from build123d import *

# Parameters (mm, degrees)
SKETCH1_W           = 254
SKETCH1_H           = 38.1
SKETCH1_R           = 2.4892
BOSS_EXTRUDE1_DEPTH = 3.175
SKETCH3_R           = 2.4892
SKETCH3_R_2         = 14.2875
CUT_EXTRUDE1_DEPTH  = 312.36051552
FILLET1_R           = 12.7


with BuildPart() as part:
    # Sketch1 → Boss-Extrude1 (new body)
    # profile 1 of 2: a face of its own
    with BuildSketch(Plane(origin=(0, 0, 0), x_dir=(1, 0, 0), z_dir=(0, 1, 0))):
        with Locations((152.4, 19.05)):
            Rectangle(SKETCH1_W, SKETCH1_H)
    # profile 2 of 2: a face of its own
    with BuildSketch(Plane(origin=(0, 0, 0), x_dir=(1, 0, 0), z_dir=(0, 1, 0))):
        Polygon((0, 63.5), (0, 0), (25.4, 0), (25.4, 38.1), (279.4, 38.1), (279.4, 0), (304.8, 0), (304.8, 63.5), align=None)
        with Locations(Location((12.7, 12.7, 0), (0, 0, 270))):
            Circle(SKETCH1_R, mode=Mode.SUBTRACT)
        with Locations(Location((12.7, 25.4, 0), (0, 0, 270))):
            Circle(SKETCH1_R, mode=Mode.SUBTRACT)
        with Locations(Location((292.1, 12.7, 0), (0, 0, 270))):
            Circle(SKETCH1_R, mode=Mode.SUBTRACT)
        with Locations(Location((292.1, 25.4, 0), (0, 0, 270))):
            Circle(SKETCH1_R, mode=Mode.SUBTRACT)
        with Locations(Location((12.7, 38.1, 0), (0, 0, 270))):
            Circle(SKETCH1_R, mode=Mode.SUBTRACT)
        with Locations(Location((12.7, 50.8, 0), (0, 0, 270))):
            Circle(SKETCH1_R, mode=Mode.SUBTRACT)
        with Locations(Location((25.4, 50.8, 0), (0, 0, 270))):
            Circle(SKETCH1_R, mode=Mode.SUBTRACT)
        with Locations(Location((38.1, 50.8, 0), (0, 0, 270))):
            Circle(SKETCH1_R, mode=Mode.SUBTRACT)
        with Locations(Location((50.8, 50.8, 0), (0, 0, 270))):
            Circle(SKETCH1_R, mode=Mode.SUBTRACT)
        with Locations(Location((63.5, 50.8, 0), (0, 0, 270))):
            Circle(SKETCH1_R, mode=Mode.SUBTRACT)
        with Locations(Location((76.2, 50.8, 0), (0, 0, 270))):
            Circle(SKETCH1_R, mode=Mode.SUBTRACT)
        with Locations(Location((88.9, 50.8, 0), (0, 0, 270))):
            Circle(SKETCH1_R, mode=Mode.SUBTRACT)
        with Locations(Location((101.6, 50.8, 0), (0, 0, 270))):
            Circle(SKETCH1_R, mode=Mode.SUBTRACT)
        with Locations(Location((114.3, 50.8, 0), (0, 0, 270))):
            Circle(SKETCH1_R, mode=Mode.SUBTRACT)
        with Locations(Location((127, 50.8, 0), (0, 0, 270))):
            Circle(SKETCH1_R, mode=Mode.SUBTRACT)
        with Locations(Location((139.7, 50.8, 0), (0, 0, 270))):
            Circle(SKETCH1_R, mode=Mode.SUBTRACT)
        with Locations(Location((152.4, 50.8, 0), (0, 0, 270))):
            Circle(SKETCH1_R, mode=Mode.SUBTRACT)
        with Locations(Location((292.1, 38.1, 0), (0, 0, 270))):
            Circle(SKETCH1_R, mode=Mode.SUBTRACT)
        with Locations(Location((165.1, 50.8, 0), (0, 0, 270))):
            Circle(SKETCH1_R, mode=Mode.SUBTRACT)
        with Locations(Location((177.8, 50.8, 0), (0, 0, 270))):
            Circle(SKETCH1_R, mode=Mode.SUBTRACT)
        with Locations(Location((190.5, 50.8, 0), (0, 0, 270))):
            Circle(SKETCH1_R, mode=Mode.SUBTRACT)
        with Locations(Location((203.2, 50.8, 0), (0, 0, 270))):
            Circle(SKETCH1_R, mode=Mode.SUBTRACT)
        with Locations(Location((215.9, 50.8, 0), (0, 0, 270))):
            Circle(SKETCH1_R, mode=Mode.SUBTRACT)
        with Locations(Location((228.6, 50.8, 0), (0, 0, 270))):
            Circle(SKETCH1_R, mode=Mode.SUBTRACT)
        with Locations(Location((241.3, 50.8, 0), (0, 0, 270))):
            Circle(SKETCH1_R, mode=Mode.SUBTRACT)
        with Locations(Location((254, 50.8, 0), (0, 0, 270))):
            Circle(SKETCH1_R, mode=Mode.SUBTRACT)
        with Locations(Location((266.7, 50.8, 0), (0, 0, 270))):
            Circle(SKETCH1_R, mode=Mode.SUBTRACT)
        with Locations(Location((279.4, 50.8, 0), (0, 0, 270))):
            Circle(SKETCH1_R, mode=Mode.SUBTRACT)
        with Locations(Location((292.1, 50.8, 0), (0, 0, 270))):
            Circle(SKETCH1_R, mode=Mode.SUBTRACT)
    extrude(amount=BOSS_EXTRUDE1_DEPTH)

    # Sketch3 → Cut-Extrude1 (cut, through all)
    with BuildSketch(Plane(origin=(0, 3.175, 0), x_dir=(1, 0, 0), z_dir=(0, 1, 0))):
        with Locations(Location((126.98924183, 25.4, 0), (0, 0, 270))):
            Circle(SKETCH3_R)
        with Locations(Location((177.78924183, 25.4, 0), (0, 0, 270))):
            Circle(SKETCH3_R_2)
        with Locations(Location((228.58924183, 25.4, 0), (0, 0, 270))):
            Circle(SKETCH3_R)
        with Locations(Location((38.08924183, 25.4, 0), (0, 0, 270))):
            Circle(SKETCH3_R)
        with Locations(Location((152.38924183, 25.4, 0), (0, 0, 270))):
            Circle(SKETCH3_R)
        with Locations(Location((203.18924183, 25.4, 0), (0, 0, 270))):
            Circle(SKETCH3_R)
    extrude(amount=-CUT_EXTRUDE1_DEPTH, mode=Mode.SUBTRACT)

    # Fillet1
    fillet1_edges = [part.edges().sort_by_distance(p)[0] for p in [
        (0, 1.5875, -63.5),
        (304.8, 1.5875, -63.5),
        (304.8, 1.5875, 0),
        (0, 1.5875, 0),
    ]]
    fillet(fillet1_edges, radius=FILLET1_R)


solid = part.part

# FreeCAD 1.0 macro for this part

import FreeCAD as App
import Part
import Sketcher

V = App.Vector
Q = App.Units.Quantity


def edges_at(feature, points):
    """Names of the edges that pass closest to the given points."""
    edges = feature.Shape.Edges
    near = lambda p: min(range(len(edges)), key=lambda i: edges[i].distToShape(Part.Vertex(*p))[0])
    return sorted({f"Edge{near(p) + 1}" for p in points})

doc = App.newDocument("Part")
body = doc.addObject("PartDesign::Body", "Body")

# Sketch on XZ plane
sketch1 = body.newObject("Sketcher::SketchObject", "Sketch")
sketch1.AttachmentSupport = (doc.getObject("XZ_Plane"), [""])
sketch1.MapMode = "FlatFace"
sketch1.addGeometry([
    Part.LineSegment(V(304.8, 0, 0), V(304.8, -63.5, 0)),  # 0
    Part.LineSegment(V(304.8, -63.5, 0), V(0, -63.5, 0)),  # 1
    Part.LineSegment(V(0, -63.5, 0), V(0, 0, 0)),  # 2
    Part.LineSegment(V(0, 0, 0), V(304.8, 0, 0)),  # 3
    Part.Circle(V(292.1, -50.8, 0), V(0, 0, 1), 2.5),  # 4
    Part.Circle(V(266.7, -50.8, 0), V(0, 0, 1), 2.5),  # 5
    Part.Circle(V(279.4, -50.8, 0), V(0, 0, 1), 2.5),  # 6
    Part.Circle(V(12.7, -12.7, 0), V(0, 0, 1), 2.5),  # 7
    Part.Circle(V(12.7, -25.4, 0), V(0, 0, 1), 2.5),  # 8
    Part.Circle(V(292.1, -12.7, 0), V(0, 0, 1), 2.5),  # 9
    Part.Circle(V(292.1, -25.4, 0), V(0, 0, 1), 2.5),  # 10
    Part.Circle(V(12.7, -38.1, 0), V(0, 0, 1), 2.5),  # 11
    Part.Circle(V(12.7, -50.8, 0), V(0, 0, 1), 2.5),  # 12
    Part.Circle(V(25.4, -50.8, 0), V(0, 0, 1), 2.5),  # 13
    Part.Circle(V(38.1, -50.8, 0), V(0, 0, 1), 2.5),  # 14
    Part.Circle(V(50.8, -50.8, 0), V(0, 0, 1), 2.5),  # 15
    Part.Circle(V(63.5, -50.8, 0), V(0, 0, 1), 2.5),  # 16
    Part.Circle(V(76.2, -50.8, 0), V(0, 0, 1), 2.5),  # 17
    Part.Circle(V(88.9, -50.8, 0), V(0, 0, 1), 2.5),  # 18
    Part.Circle(V(101.6, -50.8, 0), V(0, 0, 1), 2.5),  # 19
    Part.Circle(V(114.3, -50.8, 0), V(0, 0, 1), 2.5),  # 20
    Part.Circle(V(127, -50.8, 0), V(0, 0, 1), 2.5),  # 21
    Part.Circle(V(139.7, -50.8, 0), V(0, 0, 1), 2.5),  # 22
    Part.Circle(V(292.1, -38.1, 0), V(0, 0, 1), 2.5),  # 23
    Part.Circle(V(152.4, -50.8, 0), V(0, 0, 1), 2.5),  # 24
    Part.Circle(V(165.1, -50.8, 0), V(0, 0, 1), 2.5),  # 25
    Part.Circle(V(177.8, -50.8, 0), V(0, 0, 1), 2.5),  # 26
    Part.Circle(V(190.5, -50.8, 0), V(0, 0, 1), 2.5),  # 27
    Part.Circle(V(203.2, -50.8, 0), V(0, 0, 1), 2.5),  # 28
    Part.Circle(V(215.9, -50.8, 0), V(0, 0, 1), 2.5),  # 29
    Part.Circle(V(228.6, -50.8, 0), V(0, 0, 1), 2.5),  # 30
    Part.Circle(V(241.3, -50.8, 0), V(0, 0, 1), 2.5),  # 31
    Part.Circle(V(254, -50.8, 0), V(0, 0, 1), 2.5),  # 32
], False)
sketch1.addConstraint([
    Sketcher.Constraint("Coincident", 0, 2, 1, 1),
    Sketcher.Constraint("Coincident", 1, 2, 2, 1),
    Sketcher.Constraint("Coincident", 2, 2, 3, 1),
    Sketcher.Constraint("Coincident", 3, 2, 0, 1),
    Sketcher.Constraint("Vertical", 0),
    Sketcher.Constraint("Horizontal", 1),
    Sketcher.Constraint("Vertical", 2),
    Sketcher.Constraint("Horizontal", 3),
    Sketcher.Constraint("Coincident", 2, 2, -1, 1),
    Sketcher.Constraint("Equal", 4, 5),
    Sketcher.Constraint("Equal", 5, 6),
    Sketcher.Constraint("Equal", 6, 7),
    Sketcher.Constraint("Equal", 7, 8),
    Sketcher.Constraint("Equal", 8, 9),
    Sketcher.Constraint("Equal", 9, 10),
    Sketcher.Constraint("Equal", 10, 11),
    Sketcher.Constraint("Equal", 11, 12),
    Sketcher.Constraint("Equal", 12, 13),
    Sketcher.Constraint("Equal", 13, 14),
    Sketcher.Constraint("Equal", 14, 15),
    Sketcher.Constraint("Equal", 15, 16),
    Sketcher.Constraint("Equal", 16, 17),
    Sketcher.Constraint("Equal", 17, 18),
    Sketcher.Constraint("Equal", 18, 19),
    Sketcher.Constraint("Equal", 19, 20),
    Sketcher.Constraint("Equal", 20, 21),
    Sketcher.Constraint("Equal", 21, 22),
    Sketcher.Constraint("Equal", 22, 23),
    Sketcher.Constraint("Equal", 23, 24),
    Sketcher.Constraint("Equal", 24, 25),
    Sketcher.Constraint("Equal", 25, 26),
    Sketcher.Constraint("Equal", 26, 27),
    Sketcher.Constraint("Equal", 27, 28),
    Sketcher.Constraint("Equal", 28, 29),
    Sketcher.Constraint("Equal", 29, 30),
    Sketcher.Constraint("Equal", 30, 31),
    Sketcher.Constraint("Equal", 31, 32),
    Sketcher.Constraint("Horizontal", 4, 3, 5, 3),
    Sketcher.Constraint("Horizontal", 5, 3, 6, 3),
    Sketcher.Constraint("Horizontal", 7, 3, 9, 3),
    Sketcher.Constraint("Horizontal", 8, 3, 10, 3),
    Sketcher.Constraint("Horizontal", 6, 3, 12, 3),
    Sketcher.Constraint("Horizontal", 12, 3, 13, 3),
    Sketcher.Constraint("Horizontal", 13, 3, 14, 3),
    Sketcher.Constraint("Horizontal", 14, 3, 15, 3),
    Sketcher.Constraint("Horizontal", 15, 3, 16, 3),
    Sketcher.Constraint("Horizontal", 16, 3, 17, 3),
    Sketcher.Constraint("Horizontal", 17, 3, 18, 3),
    Sketcher.Constraint("Horizontal", 18, 3, 19, 3),
    Sketcher.Constraint("Horizontal", 19, 3, 20, 3),
    Sketcher.Constraint("Horizontal", 20, 3, 21, 3),
    Sketcher.Constraint("Horizontal", 21, 3, 22, 3),
    Sketcher.Constraint("Horizontal", 11, 3, 23, 3),
    Sketcher.Constraint("Horizontal", 22, 3, 24, 3),
    Sketcher.Constraint("Horizontal", 24, 3, 25, 3),
    Sketcher.Constraint("Horizontal", 25, 3, 26, 3),
    Sketcher.Constraint("Horizontal", 26, 3, 27, 3),
    Sketcher.Constraint("Horizontal", 27, 3, 28, 3),
    Sketcher.Constraint("Horizontal", 28, 3, 29, 3),
    Sketcher.Constraint("Horizontal", 29, 3, 30, 3),
    Sketcher.Constraint("Horizontal", 30, 3, 31, 3),
    Sketcher.Constraint("Horizontal", 31, 3, 32, 3),
    Sketcher.Constraint("Vertical", 7, 3, 8, 3),
    Sketcher.Constraint("Vertical", 4, 3, 9, 3),
    Sketcher.Constraint("Vertical", 9, 3, 10, 3),
    Sketcher.Constraint("Vertical", 8, 3, 11, 3),
    Sketcher.Constraint("Vertical", 11, 3, 12, 3),
    Sketcher.Constraint("Vertical", 10, 3, 23, 3),
    Sketcher.Constraint("DistanceX", 1, 2, 1, 1, Q("12 in")),
    Sketcher.Constraint("Diameter", 4, Q("0.196 in")),
    Sketcher.Constraint("DistanceY", 0, 2, 0, 1, Q("2.5 in")),
    Sketcher.Constraint("DistanceY", 4, 3, -1, 1, Q("2 in")),
    Sketcher.Constraint("DistanceX", -1, 1, 6, 3, Q("11 in")),
    Sketcher.Constraint("DistanceY", 8, 3, -1, 1, Q("1 in")),
    Sketcher.Constraint("DistanceX", -1, 1, 13, 3, Q("1 in")),
    Sketcher.Constraint("DistanceX", -1, 1, 15, 3, Q("2 in")),
    Sketcher.Constraint("DistanceX", -1, 1, 17, 3, Q("3 in")),
    Sketcher.Constraint("DistanceX", -1, 1, 19, 3, Q("4 in")),
    Sketcher.Constraint("DistanceX", -1, 1, 21, 3, Q("5 in")),
    Sketcher.Constraint("DistanceX", -1, 1, 24, 3, Q("6 in")),
    Sketcher.Constraint("DistanceX", -1, 1, 26, 3, Q("7 in")),
    Sketcher.Constraint("DistanceX", -1, 1, 28, 3, Q("8 in")),
    Sketcher.Constraint("DistanceX", -1, 1, 30, 3, Q("9 in")),
    Sketcher.Constraint("DistanceX", -1, 1, 32, 3, Q("10 in")),
    Sketcher.Constraint("DistanceX", 5, 3, 4, 3, Q("1 in")),
    Sketcher.Constraint("DistanceX", 7, 3, 5, 3, Q("10 in")),
    Sketcher.Constraint("DistanceY", 11, 3, 7, 3, Q("1 in")),
    Sketcher.Constraint("DistanceX", 12, 3, 14, 3, Q("1 in")),
    Sketcher.Constraint("DistanceX", 14, 3, 16, 3, Q("1 in")),
    Sketcher.Constraint("DistanceX", 16, 3, 18, 3, Q("1 in")),
    Sketcher.Constraint("DistanceX", 18, 3, 20, 3, Q("1 in")),
    Sketcher.Constraint("DistanceX", 20, 3, 22, 3, Q("1 in")),
    Sketcher.Constraint("DistanceX", 22, 3, 25, 3, Q("1 in")),
    Sketcher.Constraint("DistanceX", 25, 3, 27, 3, Q("1 in")),
    Sketcher.Constraint("DistanceX", 27, 3, 29, 3, Q("1 in")),
    Sketcher.Constraint("DistanceX", 31, 3, 5, 3, Q("1 in")),
    Sketcher.Constraint("DistanceY", 0, 2, 23, 3, Q("1 in")),
    Sketcher.Constraint("DistanceX", -1, 1, 4, 3, Q("11.5 in")),
])
pad1 = body.newObject("PartDesign::Pad", "Pad")
pad1.Profile = sketch1
pad1.Length = Q("0.125 in")
pad1.Reversed = True

# Sketch on XZ plane
sketch2 = body.newObject("Sketcher::SketchObject", "Sketch001")
sketch2.AttachmentSupport = (doc.getObject("XZ_Plane"), [""])
sketch2.MapMode = "FlatFace"
sketch2.AttachmentOffset = App.Placement(V(0, 0, -0.125 * 25.4), App.Rotation())
sketch2.addGeometry([
    Part.Circle(V(127, -25.4, 0), V(0, 0, 1), 2.5),  # 0
    Part.Circle(V(177.8, -25.4, 0), V(0, 0, 1), 14.3),  # 1
    Part.Circle(V(228.6, -25.4, 0), V(0, 0, 1), 2.5),  # 2
    Part.Circle(V(38.1, -25.4, 0), V(0, 0, 1), 2.5),  # 3
    Part.Circle(V(152.4, -25.4, 0), V(0, 0, 1), 2.5),  # 4
    Part.Circle(V(203.2, -25.4, 0), V(0, 0, 1), 2.5),  # 5
], False)
sketch2.addConstraint([
    Sketcher.Constraint("Equal", 0, 2),
    Sketcher.Constraint("Equal", 2, 3),
    Sketcher.Constraint("Equal", 3, 4),
    Sketcher.Constraint("Equal", 4, 5),
    Sketcher.Constraint("Horizontal", 0, 3, 1, 3),
    Sketcher.Constraint("Horizontal", 1, 3, 2, 3),
    Sketcher.Constraint("Horizontal", 2, 3, 3, 3),
    Sketcher.Constraint("Horizontal", 3, 3, 4, 3),
    Sketcher.Constraint("Horizontal", 4, 3, 5, 3),
    Sketcher.Constraint("Diameter", 0, Q("0.196 in")),
    Sketcher.Constraint("Diameter", 1, Q("1.125 in")),
    Sketcher.Constraint("DistanceY", 0, 3, -1, 1, Q("1 in")),
    Sketcher.Constraint("DistanceX", 0, 3, 1, 3, Q("2 in")),
    Sketcher.Constraint("DistanceX", 1, 3, 2, 3, Q("2 in")),
    Sketcher.Constraint("DistanceX", 0, 3, 4, 3, Q("1 in")),
    Sketcher.Constraint("DistanceX", 1, 3, 5, 3, Q("1 in")),
    Sketcher.Constraint("DistanceX", 3, 3, 0, 3, Q("3.5 in")),
    Sketcher.Constraint("DistanceX", -1, 1, 0, 3, Q("126.989242 mm")),
])
pocket1 = body.newObject("PartDesign::Pocket", "Pocket")
pocket1.Profile = sketch2
pocket1.Type = "ThroughAll"
pocket1.Reversed = True
doc.recompute()

fillet = body.newObject("PartDesign::Fillet", "Fillet")
fillet.Base = (pocket1, edges_at(pocket1, [
    (0, 1.587, -63.5),
    (304.8, 1.587, -63.5),
    (304.8, 1.587, 0),
    (0, 1.587, 0),
]))
fillet.Radius = Q("0.5 in")

doc.recompute()
